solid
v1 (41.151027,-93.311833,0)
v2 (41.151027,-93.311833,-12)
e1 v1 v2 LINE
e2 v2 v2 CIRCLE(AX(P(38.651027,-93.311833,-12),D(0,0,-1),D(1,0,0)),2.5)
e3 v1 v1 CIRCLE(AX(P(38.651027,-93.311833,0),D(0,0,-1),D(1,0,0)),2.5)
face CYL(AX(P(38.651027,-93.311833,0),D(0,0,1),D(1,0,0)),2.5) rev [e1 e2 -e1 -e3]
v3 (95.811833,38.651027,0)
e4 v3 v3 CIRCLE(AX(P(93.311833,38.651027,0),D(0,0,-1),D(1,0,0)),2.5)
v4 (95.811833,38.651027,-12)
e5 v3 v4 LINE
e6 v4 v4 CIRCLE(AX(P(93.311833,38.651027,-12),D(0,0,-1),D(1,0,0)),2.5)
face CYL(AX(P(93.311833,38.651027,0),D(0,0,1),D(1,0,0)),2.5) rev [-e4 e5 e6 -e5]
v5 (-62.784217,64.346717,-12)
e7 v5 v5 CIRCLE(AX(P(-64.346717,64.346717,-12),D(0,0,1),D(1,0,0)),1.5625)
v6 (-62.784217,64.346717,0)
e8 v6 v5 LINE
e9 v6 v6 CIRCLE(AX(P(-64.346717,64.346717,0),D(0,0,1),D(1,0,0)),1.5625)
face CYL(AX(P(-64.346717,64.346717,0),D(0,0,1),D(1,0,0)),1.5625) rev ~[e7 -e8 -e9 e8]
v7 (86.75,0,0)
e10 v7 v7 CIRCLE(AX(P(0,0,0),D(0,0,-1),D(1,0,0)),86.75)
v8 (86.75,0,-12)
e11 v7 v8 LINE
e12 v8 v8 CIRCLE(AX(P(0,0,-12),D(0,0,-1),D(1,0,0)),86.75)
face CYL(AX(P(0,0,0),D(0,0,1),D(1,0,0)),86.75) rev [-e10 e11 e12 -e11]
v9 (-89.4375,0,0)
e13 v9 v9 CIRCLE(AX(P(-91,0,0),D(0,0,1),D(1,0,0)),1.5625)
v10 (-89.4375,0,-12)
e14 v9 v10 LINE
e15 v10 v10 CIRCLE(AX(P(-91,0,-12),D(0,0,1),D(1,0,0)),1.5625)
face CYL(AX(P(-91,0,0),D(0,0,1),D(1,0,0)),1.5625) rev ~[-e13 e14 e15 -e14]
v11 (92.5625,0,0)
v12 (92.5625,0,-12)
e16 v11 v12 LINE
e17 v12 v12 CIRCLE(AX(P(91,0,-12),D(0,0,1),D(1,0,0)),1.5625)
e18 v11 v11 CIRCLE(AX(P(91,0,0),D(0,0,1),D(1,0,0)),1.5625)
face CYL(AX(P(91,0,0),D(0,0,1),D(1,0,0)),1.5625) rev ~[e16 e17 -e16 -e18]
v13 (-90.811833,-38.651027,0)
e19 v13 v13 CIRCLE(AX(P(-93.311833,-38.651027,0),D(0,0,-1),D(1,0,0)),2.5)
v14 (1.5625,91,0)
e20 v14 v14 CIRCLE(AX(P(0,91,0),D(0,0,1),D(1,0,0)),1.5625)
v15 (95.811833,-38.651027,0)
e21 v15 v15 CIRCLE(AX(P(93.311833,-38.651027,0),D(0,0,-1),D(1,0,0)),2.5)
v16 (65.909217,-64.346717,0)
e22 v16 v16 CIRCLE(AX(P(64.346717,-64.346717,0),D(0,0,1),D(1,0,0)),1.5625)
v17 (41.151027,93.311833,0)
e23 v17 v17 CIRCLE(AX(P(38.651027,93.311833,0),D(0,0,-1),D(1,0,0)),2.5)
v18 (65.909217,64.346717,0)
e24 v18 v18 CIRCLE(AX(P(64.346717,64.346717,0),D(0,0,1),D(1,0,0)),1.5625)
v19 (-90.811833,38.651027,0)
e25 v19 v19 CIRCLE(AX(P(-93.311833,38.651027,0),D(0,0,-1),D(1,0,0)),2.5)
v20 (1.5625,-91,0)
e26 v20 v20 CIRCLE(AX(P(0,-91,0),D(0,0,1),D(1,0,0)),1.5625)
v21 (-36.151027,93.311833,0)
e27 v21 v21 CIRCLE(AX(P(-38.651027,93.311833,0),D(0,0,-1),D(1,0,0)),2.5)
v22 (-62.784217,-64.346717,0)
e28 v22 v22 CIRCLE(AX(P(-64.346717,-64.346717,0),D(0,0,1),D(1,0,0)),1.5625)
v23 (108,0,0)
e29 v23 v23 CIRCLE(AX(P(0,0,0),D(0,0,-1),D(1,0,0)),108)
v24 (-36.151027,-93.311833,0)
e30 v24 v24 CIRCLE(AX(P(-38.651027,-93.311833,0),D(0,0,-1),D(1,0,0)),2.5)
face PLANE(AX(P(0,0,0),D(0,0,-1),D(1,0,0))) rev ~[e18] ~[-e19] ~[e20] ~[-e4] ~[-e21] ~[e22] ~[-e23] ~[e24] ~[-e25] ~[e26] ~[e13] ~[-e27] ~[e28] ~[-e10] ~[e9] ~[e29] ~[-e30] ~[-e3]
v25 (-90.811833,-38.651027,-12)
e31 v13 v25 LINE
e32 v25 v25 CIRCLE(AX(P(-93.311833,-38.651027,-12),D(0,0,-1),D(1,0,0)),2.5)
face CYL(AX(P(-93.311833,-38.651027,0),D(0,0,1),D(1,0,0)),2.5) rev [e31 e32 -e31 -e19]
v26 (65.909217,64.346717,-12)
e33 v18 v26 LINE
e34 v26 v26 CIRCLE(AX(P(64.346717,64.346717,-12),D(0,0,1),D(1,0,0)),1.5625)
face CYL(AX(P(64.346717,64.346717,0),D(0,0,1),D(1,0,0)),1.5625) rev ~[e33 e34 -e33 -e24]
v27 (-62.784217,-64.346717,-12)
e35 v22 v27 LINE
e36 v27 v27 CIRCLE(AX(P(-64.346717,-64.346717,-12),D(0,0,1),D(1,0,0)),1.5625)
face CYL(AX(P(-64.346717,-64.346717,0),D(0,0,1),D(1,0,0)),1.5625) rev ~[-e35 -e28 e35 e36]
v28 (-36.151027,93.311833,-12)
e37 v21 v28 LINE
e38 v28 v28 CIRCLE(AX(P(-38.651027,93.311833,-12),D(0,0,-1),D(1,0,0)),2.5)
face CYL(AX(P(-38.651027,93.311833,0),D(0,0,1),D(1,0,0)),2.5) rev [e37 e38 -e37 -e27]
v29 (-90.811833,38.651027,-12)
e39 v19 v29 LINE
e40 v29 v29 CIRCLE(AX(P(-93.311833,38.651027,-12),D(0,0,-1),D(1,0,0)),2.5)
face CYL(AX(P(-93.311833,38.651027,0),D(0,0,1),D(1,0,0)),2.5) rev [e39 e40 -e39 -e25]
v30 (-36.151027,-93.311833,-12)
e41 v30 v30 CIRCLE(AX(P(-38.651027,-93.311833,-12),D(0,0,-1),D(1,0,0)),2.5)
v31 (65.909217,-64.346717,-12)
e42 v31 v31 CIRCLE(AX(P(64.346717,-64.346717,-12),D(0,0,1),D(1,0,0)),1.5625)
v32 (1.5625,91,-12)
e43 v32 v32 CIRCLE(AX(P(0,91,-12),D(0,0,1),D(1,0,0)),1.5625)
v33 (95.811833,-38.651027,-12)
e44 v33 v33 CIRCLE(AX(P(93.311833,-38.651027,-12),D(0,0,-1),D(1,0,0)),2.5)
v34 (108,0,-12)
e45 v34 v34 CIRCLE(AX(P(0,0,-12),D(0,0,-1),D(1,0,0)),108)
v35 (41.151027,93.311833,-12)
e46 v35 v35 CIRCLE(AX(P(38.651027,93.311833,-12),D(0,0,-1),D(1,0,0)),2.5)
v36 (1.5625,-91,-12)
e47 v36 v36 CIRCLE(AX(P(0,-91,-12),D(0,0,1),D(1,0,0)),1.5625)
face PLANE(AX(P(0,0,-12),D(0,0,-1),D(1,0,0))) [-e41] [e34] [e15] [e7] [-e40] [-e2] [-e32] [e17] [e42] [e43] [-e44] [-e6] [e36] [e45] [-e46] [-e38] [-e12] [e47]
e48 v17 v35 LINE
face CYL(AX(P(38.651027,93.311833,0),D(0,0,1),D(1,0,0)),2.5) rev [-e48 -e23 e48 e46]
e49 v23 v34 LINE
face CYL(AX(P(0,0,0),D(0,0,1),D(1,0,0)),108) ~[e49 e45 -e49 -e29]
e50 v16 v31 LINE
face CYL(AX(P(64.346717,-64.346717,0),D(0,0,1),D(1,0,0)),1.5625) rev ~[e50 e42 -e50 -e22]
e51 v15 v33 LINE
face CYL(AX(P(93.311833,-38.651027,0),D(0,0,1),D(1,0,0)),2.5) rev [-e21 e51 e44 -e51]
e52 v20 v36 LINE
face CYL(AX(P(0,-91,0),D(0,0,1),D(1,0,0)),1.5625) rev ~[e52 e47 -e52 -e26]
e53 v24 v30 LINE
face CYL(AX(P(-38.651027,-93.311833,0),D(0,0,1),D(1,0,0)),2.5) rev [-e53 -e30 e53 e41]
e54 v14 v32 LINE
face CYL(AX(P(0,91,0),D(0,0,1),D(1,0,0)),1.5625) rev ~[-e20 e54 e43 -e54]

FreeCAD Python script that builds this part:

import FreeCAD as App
import Part
import Sketcher
Q = App.Units.Quantity

doc = App.newDocument("Part")
body = doc.addObject("PartDesign::Body", "Body")

# Sketch on XY plane
sketch1 = body.newObject("Sketcher::SketchObject", "Sketch")
sketch1.AttachmentSupport = (doc.getObject("XY_Plane"), [""])
sketch1.MapMode = "FlatFace"
sketch1.addGeometry(Part.Circle(App.Vector(0, 0, 0), App.Vector(0, 0, 1), 108), False)
sketch1.addGeometry(Part.Circle(App.Vector(-38.7, 93.3, 0), App.Vector(0, 0, 1), 2.5), False)
sketch1.addGeometry(Part.Circle(App.Vector(-93.3, 38.7, 0), App.Vector(0, 0, 1), 2.5), False)
sketch1.addGeometry(Part.Circle(App.Vector(0, 0, 0), App.Vector(0, 0, 1), 86.8), False)
sketch1.addGeometry(Part.Circle(App.Vector(38.7, 93.3, 0), App.Vector(0, 0, 1), 2.5), False)
sketch1.addGeometry(Part.Circle(App.Vector(93.3, 38.7, 0), App.Vector(0, 0, 1), 2.5), False)
sketch1.addGeometry(Part.Circle(App.Vector(-93.3, -38.7, 0), App.Vector(0, 0, 1), 2.5), False)
sketch1.addGeometry(Part.Circle(App.Vector(-38.7, -93.3, 0), App.Vector(0, 0, 1), 2.5), False)
sketch1.addGeometry(Part.Circle(App.Vector(93.3, -38.7, 0), App.Vector(0, 0, 1), 2.5), False)
sketch1.addGeometry(Part.Circle(App.Vector(38.7, -93.3, 0), App.Vector(0, 0, 1), 2.5), False)
sketch1.addConstraint(Sketcher.Constraint("Coincident", 0, 3, -1, 1))
sketch1.addConstraint(Sketcher.Constraint("Coincident", 3, 3, -1, 1))
sketch1.addConstraint(Sketcher.Constraint("Equal", 1, 2))
sketch1.addConstraint(Sketcher.Constraint("Equal", 2, 4))
sketch1.addConstraint(Sketcher.Constraint("Equal", 4, 5))
sketch1.addConstraint(Sketcher.Constraint("Equal", 5, 6))
sketch1.addConstraint(Sketcher.Constraint("Equal", 6, 7))
sketch1.addConstraint(Sketcher.Constraint("Equal", 7, 8))
sketch1.addConstraint(Sketcher.Constraint("Equal", 8, 9))
sketch1.addConstraint(Sketcher.Constraint("Symmetric", 5, 3, 6, 3, -1, 1))
sketch1.addConstraint(Sketcher.Constraint("Symmetric", 4, 3, 7, 3, -1, 1))
sketch1.addConstraint(Sketcher.Constraint("Symmetric", 2, 3, 8, 3, -1, 1))
sketch1.addConstraint(Sketcher.Constraint("Symmetric", 1, 3, 9, 3, -1, 1))
sketch1.addConstraint(Sketcher.Constraint("Symmetric", 1, 3, 4, 3, -2))
sketch1.addConstraint(Sketcher.Constraint("Symmetric", 2, 3, 5, 3, -2))
sketch1.addConstraint(Sketcher.Constraint("Diameter", 0, Q("216 mm")))
sketch1.addConstraint(Sketcher.Constraint("Diameter", 1, Q("5 mm")))
sketch1.addConstraint(Sketcher.Constraint("Diameter", 3, Q("173.5 mm")))
sketch1.addConstraint(Sketcher.Constraint("DistanceX", 2, 3, 4, 3, Q("131.96286 mm")))
sketch1.addConstraint(Sketcher.Constraint("DistanceY", 6, 3, 1, 3, Q("131.96286 mm")))
sketch1.addConstraint(Sketcher.Constraint("DistanceX", 1, 3, -1, 1, Q("38.651027 mm")))
sketch1.addConstraint(Sketcher.Constraint("DistanceY", -1, 1, 1, 3, Q("93.311833 mm")))
pad1 = body.newObject("PartDesign::Pad", "Pad")
pad1.Profile = sketch1
pad1.Length = 12
pad1.Reversed = True

# Sketch on XY plane
sketch2 = body.newObject("Sketcher::SketchObject", "Sketch001")
sketch2.AttachmentSupport = (doc.getObject("XY_Plane"), [""])
sketch2.MapMode = "FlatFace"
sketch2.addGeometry(Part.Circle(App.Vector(64.3, 64.3, 0), App.Vector(0, 0, 1), 1.6), False)
sketch2.addGeometry(Part.Circle(App.Vector(0, 91, 0), App.Vector(0, 0, 1), 1.6), False)
sketch2.addGeometry(Part.Circle(App.Vector(91, 0, 0), App.Vector(0, 0, 1), 1.6), False)
sketch2.addGeometry(Part.Circle(App.Vector(64.3, -64.3, 0), App.Vector(0, 0, 1), 1.6), False)
sketch2.addGeometry(Part.Circle(App.Vector(0, -91, 0), App.Vector(0, 0, 1), 1.6), False)
sketch2.addGeometry(Part.Circle(App.Vector(-91, 0, 0), App.Vector(0, 0, 1), 1.6), False)
sketch2.addGeometry(Part.Circle(App.Vector(-64.3, -64.3, 0), App.Vector(0, 0, 1), 1.6), False)
sketch2.addGeometry(Part.Circle(App.Vector(-64.3, 64.3, 0), App.Vector(0, 0, 1), 1.6), False)
sketch2.addConstraint(Sketcher.Constraint("Equal", 0, 1))
sketch2.addConstraint(Sketcher.Constraint("Equal", 1, 2))
sketch2.addConstraint(Sketcher.Constraint("Equal", 2, 3))
sketch2.addConstraint(Sketcher.Constraint("Equal", 3, 4))
sketch2.addConstraint(Sketcher.Constraint("Equal", 4, 5))
sketch2.addConstraint(Sketcher.Constraint("Equal", 5, 6))
sketch2.addConstraint(Sketcher.Constraint("Equal", 6, 7))
sketch2.addConstraint(Sketcher.Constraint("Symmetric", 1, 3, 4, 3, -1, 1))
sketch2.addConstraint(Sketcher.Constraint("Symmetric", 2, 3, 5, 3, -1, 1))
sketch2.addConstraint(Sketcher.Constraint("Symmetric", 0, 3, 6, 3, -1, 1))
sketch2.addConstraint(Sketcher.Constraint("Symmetric", 3, 3, 7, 3, -1, 1))
sketch2.addConstraint(Sketcher.Constraint("Symmetric", 3, 3, 6, 3, -2))
sketch2.addConstraint(Sketcher.Constraint("PointOnObject", 1, 3, -2))
sketch2.addConstraint(Sketcher.Constraint("PointOnObject", 2, 3, -1))
sketch2.addConstraint(Sketcher.Constraint("Diameter", 0, Q("3.125 mm")))
sketch2.addConstraint(Sketcher.Constraint("DistanceY", -1, 1, 1, 3, Q("91 mm")))
sketch2.addConstraint(Sketcher.Constraint("DistanceX", -1, 1, 2, 3, Q("91 mm")))
sketch2.addConstraint(Sketcher.Constraint("DistanceX", -1, 1, 0, 3, Q("64.346717 mm")))
sketch2.addConstraint(Sketcher.Constraint("DistanceY", -1, 1, 0, 3, Q("64.346717 mm")))
pocket1 = body.newObject("PartDesign::Pocket", "Pocket")
pocket1.Profile = sketch2
pocket1.Type = "ThroughAll"
pocket1.Midplane = True

doc.recompute()
